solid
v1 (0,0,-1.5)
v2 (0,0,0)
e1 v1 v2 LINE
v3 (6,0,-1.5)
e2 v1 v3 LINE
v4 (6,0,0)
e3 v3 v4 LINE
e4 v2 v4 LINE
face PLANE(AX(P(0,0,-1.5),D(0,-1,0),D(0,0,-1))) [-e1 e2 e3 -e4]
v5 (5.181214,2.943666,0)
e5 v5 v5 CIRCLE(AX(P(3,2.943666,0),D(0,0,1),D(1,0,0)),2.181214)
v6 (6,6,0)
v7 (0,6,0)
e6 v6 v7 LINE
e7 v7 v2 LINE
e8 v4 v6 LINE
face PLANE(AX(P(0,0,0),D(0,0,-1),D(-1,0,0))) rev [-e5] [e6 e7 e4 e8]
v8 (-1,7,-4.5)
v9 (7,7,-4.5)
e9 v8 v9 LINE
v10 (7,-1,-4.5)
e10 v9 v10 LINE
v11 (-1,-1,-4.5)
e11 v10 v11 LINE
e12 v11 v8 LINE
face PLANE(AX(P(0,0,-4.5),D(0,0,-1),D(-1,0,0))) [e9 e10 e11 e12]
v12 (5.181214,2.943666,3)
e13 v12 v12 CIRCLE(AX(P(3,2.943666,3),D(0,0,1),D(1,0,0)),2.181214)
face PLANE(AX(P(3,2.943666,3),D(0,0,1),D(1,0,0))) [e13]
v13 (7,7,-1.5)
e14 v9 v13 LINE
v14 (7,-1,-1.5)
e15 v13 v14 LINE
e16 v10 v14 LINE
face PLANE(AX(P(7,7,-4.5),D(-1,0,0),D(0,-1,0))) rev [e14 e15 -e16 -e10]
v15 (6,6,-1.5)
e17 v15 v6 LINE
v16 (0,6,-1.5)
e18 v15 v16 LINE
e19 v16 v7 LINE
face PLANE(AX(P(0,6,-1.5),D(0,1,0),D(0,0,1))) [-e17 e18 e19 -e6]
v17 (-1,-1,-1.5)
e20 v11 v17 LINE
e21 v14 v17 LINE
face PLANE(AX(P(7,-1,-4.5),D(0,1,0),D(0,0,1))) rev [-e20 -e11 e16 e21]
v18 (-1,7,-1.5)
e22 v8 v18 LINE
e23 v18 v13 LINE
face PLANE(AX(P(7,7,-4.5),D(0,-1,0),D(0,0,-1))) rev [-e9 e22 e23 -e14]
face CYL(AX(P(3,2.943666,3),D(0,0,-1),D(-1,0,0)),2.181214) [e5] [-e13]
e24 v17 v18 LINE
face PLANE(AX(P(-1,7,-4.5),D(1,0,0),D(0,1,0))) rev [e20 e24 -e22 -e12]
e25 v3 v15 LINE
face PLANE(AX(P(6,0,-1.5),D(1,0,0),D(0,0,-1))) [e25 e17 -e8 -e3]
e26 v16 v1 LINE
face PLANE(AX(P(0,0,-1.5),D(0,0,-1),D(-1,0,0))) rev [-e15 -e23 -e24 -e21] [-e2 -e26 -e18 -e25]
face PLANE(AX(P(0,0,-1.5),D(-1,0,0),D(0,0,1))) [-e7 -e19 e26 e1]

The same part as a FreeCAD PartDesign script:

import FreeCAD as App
import Part
import Sketcher
from FreeCAD import Vector


def add_polygon(sketch, points):
    """Adds a closed chain of lines whose ends are joined by coincident constraints."""
    first, n = sketch.GeometryCount, len(points)
    for a, b in zip(points, points[1:] + points[:1]):
        sketch.addGeometry(Part.LineSegment(App.Vector(*a, 0), App.Vector(*b, 0)), False)
    for i in range(n):
        sketch.addConstraint(Sketcher.Constraint("Coincident", first + i, 2, first + (i + 1) % n, 1))

doc = App.newDocument("Part")
body = doc.addObject("PartDesign::Body", "Body")

# Sketch on XY plane
sketch1 = body.newObject("Sketcher::SketchObject", "Sketch")
sketch1.AttachmentSupport = (doc.getObject("XY_Plane"), [""])
sketch1.MapMode = "FlatFace"
add_polygon(sketch1, [(0, 6), (0, 0), (6, 0), (6, 6)])  # lines 0-3
sketch1.addConstraint(Sketcher.Constraint("Vertical", 0))
sketch1.addConstraint(Sketcher.Constraint("Horizontal", 1))
sketch1.addConstraint(Sketcher.Constraint("Vertical", 2))
sketch1.addConstraint(Sketcher.Constraint("Horizontal", 3))
sketch1.addConstraint(Sketcher.Constraint("Coincident", 0, 2, -1, 1))
sketch1.addConstraint(Sketcher.Constraint("Equal", 3, 0))
sketch1.addConstraint(Sketcher.Constraint("DistanceX", 1, 1, 1, 2, 6.0))
pad1 = body.newObject("PartDesign::Pad", "Pad")
pad1.Profile = sketch1
pad1.Length = 1.5
pad1.Reversed = True

# Sketch on XY plane
sketch2 = body.newObject("Sketcher::SketchObject", "Sketch001")
sketch2.AttachmentSupport = (doc.getObject("XY_Plane"), [""])
sketch2.MapMode = "FlatFace"
sketch2.addGeometry(Part.Circle(Vector(3, 2.943666, 0), Vector(0, 0, 1), 2.181214), False)
sketch2.addConstraint(Sketcher.Constraint("DistanceX", -1, 1, 0, 3, 3.0))
sketch2.addConstraint(Sketcher.Constraint("Diameter", 0, 4.362428))
sketch2.addConstraint(Sketcher.Constraint("DistanceY", -1, 1, 0, 3, 2.943666))
pad2 = body.newObject("PartDesign::Pad", "Pad001")
pad2.Profile = sketch2
pad2.Length = 3

# Sketch on XY plane
sketch3 = body.newObject("Sketcher::SketchObject", "Sketch002")
sketch3.AttachmentSupport = (doc.getObject("XY_Plane"), [""])
sketch3.MapMode = "FlatFace"
sketch3.AttachmentOffset = App.Placement(Vector(0, 0, -1.5), App.Rotation())
add_polygon(sketch3, [(7, 7), (7, -1), (-1, -1), (-1, 7)])  # lines 0-3
sketch3.addConstraint(Sketcher.Constraint("Vertical", 0))
sketch3.addConstraint(Sketcher.Constraint("Horizontal", 1))
sketch3.addConstraint(Sketcher.Constraint("Vertical", 2))
sketch3.addConstraint(Sketcher.Constraint("Horizontal", 3))
sketch3.addConstraint(Sketcher.Constraint("Equal", 3, 0))
sketch3.addConstraint(Sketcher.Constraint("DistanceX", 1, 2, 1, 1, 8.0))
sketch3.addConstraint(Sketcher.Constraint("DistanceX", -1, 1, 0, 2, 7.0))
sketch3.addConstraint(Sketcher.Constraint("DistanceY", 0, 2, -1, 1, 1.0))
pad3 = body.newObject("PartDesign::Pad", "Pad002")
pad3.Profile = sketch3
pad3.Length = 3
pad3.Reversed = True

doc.recompute()
